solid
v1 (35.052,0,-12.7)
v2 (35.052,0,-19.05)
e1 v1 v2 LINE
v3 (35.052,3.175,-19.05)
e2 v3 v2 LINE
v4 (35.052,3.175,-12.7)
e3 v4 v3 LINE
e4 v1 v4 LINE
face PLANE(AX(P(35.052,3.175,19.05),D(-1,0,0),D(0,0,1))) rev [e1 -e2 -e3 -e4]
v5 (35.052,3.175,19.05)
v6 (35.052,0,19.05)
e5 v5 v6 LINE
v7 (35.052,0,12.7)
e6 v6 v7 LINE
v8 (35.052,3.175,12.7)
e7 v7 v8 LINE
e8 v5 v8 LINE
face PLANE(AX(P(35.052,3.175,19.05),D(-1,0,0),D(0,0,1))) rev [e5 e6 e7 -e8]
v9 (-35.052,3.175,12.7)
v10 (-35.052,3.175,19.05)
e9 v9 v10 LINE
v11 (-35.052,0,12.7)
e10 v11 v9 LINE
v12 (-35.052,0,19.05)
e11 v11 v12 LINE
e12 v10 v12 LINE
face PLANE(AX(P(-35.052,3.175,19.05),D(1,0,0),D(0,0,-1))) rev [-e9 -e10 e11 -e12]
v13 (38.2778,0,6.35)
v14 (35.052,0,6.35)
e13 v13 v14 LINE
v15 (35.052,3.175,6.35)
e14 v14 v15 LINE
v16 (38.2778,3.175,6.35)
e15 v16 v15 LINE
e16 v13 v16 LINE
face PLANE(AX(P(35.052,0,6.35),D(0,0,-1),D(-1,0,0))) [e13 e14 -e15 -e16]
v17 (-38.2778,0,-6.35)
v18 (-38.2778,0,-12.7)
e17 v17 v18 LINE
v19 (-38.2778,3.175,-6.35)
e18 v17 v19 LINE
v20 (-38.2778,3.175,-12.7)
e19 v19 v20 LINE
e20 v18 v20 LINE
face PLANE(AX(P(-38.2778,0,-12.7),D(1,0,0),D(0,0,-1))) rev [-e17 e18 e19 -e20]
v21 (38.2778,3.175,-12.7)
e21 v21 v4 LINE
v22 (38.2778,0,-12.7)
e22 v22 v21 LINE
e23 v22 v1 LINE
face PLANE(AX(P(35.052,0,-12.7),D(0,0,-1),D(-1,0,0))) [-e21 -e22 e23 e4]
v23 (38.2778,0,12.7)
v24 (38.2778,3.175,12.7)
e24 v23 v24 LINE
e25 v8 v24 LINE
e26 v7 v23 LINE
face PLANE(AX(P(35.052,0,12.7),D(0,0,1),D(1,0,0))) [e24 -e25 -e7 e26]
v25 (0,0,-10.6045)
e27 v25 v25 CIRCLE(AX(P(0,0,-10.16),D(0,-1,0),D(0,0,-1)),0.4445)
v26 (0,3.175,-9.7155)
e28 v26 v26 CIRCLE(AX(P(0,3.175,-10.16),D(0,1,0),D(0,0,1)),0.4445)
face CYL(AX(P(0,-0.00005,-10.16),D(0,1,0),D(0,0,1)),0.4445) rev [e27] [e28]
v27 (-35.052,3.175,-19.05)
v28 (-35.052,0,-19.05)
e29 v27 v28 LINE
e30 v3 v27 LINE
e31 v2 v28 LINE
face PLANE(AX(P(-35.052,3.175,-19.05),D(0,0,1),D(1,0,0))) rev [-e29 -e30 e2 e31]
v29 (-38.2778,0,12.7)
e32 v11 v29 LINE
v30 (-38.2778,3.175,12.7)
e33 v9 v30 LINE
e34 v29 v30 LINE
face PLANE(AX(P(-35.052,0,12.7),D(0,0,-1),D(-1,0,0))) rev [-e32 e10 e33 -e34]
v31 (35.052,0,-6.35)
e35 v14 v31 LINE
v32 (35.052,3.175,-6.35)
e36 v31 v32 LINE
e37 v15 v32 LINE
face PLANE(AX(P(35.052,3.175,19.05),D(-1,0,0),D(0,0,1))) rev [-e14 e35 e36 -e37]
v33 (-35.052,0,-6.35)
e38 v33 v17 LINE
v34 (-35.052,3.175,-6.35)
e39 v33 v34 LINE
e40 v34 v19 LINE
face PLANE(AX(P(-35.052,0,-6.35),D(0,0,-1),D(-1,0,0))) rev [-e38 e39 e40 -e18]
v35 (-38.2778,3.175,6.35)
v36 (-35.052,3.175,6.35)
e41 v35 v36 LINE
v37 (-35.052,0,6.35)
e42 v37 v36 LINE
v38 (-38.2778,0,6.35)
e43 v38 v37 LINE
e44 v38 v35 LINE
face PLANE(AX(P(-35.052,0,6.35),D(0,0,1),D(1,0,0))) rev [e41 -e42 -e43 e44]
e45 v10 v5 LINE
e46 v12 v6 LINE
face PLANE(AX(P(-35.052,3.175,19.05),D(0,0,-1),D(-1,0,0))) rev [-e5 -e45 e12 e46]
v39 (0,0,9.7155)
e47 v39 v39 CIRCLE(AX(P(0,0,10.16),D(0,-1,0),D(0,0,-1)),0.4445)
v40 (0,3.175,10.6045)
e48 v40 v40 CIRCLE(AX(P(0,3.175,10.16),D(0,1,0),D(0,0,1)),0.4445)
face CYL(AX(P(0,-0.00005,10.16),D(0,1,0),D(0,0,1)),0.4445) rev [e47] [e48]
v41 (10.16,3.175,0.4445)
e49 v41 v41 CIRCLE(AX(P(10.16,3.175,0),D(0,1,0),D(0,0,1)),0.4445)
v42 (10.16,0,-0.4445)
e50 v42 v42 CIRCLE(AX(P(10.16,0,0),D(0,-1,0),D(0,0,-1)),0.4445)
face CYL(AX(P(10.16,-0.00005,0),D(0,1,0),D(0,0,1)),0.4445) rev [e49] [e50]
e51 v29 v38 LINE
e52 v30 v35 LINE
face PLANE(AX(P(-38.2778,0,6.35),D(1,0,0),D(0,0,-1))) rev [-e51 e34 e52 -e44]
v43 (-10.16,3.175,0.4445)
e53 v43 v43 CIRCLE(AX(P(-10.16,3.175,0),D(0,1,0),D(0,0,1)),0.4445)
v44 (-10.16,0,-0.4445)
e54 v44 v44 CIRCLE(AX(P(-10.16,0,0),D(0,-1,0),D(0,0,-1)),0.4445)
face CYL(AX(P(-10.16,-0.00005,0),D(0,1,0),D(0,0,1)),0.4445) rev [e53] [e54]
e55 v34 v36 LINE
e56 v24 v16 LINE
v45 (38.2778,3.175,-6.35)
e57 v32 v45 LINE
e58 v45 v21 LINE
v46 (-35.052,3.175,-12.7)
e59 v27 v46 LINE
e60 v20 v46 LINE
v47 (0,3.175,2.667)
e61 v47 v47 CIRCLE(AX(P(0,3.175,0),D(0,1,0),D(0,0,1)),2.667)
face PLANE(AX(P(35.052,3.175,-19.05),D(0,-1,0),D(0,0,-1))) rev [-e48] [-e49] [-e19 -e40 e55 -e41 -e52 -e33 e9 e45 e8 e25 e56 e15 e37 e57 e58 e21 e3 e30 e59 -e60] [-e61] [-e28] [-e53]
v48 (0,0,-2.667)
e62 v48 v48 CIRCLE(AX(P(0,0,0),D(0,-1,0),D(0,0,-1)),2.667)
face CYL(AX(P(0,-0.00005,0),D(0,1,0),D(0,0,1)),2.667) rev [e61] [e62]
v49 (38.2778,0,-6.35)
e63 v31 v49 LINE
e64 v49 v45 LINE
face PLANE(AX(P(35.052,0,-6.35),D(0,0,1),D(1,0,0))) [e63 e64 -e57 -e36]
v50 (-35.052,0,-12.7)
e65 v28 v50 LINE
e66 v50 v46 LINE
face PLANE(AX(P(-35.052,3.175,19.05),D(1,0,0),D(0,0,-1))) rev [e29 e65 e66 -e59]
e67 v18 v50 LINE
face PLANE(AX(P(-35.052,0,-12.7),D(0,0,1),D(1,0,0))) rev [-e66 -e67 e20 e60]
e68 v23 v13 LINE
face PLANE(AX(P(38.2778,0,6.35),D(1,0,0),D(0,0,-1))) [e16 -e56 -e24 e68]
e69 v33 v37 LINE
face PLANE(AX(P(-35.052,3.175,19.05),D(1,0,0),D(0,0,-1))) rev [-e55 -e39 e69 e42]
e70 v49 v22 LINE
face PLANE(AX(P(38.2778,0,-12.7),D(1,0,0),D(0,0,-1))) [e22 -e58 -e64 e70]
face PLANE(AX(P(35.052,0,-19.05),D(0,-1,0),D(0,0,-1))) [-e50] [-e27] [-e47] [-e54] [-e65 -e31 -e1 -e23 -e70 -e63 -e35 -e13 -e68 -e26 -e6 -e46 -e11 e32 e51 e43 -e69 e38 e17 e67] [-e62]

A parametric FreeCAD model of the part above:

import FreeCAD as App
import Part
import Sketcher

V = App.Vector
Q = App.Units.Quantity


def add_polygon(sketch, points):
    """Adds a closed chain of lines whose ends are joined by coincident constraints."""
    first, n = sketch.GeometryCount, len(points)
    for a, b in zip(points, points[1:] + points[:1]):
        sketch.addGeometry(Part.LineSegment(App.Vector(*a, 0), App.Vector(*b, 0)), False)
    for i in range(n):
        sketch.addConstraint(Sketcher.Constraint("Coincident", first + i, 2, first + (i + 1) % n, 1))

doc = App.newDocument("Part")
params = doc.addObject("Spreadsheet::Sheet", "Params")
for row, (alias, value) in enumerate([
    ("sketch1_height", "1.5 in"),
    ("sketch1_width", "2.76 in"),
    ("pad1_length", "0.125 in"),
    ("sketch2_height", "0.25 in"),
    ("sketch2_width", "0.127 in"),
    ("pad2_length", "0.125 in"),
    ("sketch3_diameter", "0.21 in"),
    ("sketch3_diameter2", "0.035 in"),
], start=1):
    params.set(f"A{row}", alias)
    params.set(f"B{row}", "=" + value)
    params.setAlias(f"B{row}", alias)

body = doc.addObject("PartDesign::Body", "Body")

# Sketch on XZ plane
sketch1 = body.newObject("Sketcher::SketchObject", "Sketch")
sketch1.AttachmentSupport = (doc.getObject("XZ_Plane"), [""])
sketch1.MapMode = "FlatFace"
add_polygon(sketch1, [(-35, -19), (-35, 19), (35, 19), (35, -19)])  # lines 0-3
sketch1.addConstraint(Sketcher.Constraint("Vertical", 0))
sketch1.addConstraint(Sketcher.Constraint("Horizontal", 1))
sketch1.addConstraint(Sketcher.Constraint("Vertical", 2))
sketch1.addConstraint(Sketcher.Constraint("Horizontal", 3))
sketch1.addConstraint(Sketcher.Constraint("Symmetric", 0, 2, 2, 2, -1, 1))
sketch1.addConstraint(Sketcher.Constraint("DistanceY", 0, 1, 0, 2, Q("1.5 in")))
sketch1.addConstraint(Sketcher.Constraint("DistanceX", 1, 1, 1, 2, Q("2.76 in")))
sketch1.setExpression("Constraints[9]", "Params.sketch1_height")
sketch1.setExpression("Constraints[10]", "Params.sketch1_width")
pad1 = body.newObject("PartDesign::Pad", "Pad")
pad1.Profile = sketch1
pad1.setExpression("Length", "Params.pad1_length")
pad1.Reversed = True

# Sketch on XZ plane
sketch2 = body.newObject("Sketcher::SketchObject", "Sketch001")
sketch2.AttachmentSupport = (doc.getObject("XZ_Plane"), [""])
sketch2.MapMode = "FlatFace"
sketch2.AttachmentOffset = App.Placement(V(0, 0, -0.125 * 25.4), App.Rotation())
add_polygon(sketch2, [(35.1, -12.7), (35.1, -6.3), (38.3, -6.3), (38.3, -12.7)])  # lines 0-3
add_polygon(sketch2, [(35.1, 6.3), (35.1, 12.7), (38.3, 12.7), (38.3, 6.3)])  # lines 4-7
sketch2.addConstraint(Sketcher.Constraint("Vertical", 0))
sketch2.addConstraint(Sketcher.Constraint("Horizontal", 1))
sketch2.addConstraint(Sketcher.Constraint("Vertical", 2))
sketch2.addConstraint(Sketcher.Constraint("Horizontal", 3))
sketch2.addConstraint(Sketcher.Constraint("Vertical", 4))
sketch2.addConstraint(Sketcher.Constraint("Horizontal", 5))
sketch2.addConstraint(Sketcher.Constraint("Vertical", 6))
sketch2.addConstraint(Sketcher.Constraint("Horizontal", 7))
sketch2.addConstraint(Sketcher.Constraint("Symmetric", 3, 2, 4, 2, -1))
sketch2.addConstraint(Sketcher.Constraint("Symmetric", 1, 2, 6, 2, -1))
sketch2.addConstraint(Sketcher.Constraint("DistanceY", 3, 2, 4, 2, Q("1 in")))
sketch2.addConstraint(Sketcher.Constraint("DistanceY", 0, 1, 0, 2, Q("0.25 in")))
sketch2.addConstraint(Sketcher.Constraint("DistanceX", 1, 1, 1, 2, Q("0.127 in")))
sketch2.addConstraint(Sketcher.Constraint("DistanceX", -1, 1, 0, 2, Q("1.38 in")))
sketch2.setExpression("Constraints[19]", "Params.sketch2_height")
sketch2.setExpression("Constraints[20]", "Params.sketch2_width")
pad2 = body.newObject("PartDesign::Pad", "Pad001")
pad2.Profile = sketch2
pad2.setExpression("Length", "Params.pad2_length")
doc.recompute()

mirrored = body.newObject("PartDesign::Mirrored", "Mirrored")
mirrored.Originals = [pad2]
mirrored.MirrorPlane = (doc.getObject("YZ_Plane"), [""])
body.Tip = mirrored

# Sketch on XZ plane
sketch3 = body.newObject("Sketcher::SketchObject", "Sketch002")
sketch3.AttachmentSupport = (doc.getObject("XZ_Plane"), [""])
sketch3.MapMode = "FlatFace"
sketch3.AttachmentOffset = App.Placement(V(0, 0, -0.125 * 25.4), App.Rotation())
sketch3.addGeometry(Part.Circle(V(0, 0, 0), V(0, 0, 1), 2.67), False)
sketch3.addGeometry(Part.Circle(V(0, -10.16, 0), V(0, 0, 1), 0.44), False)
sketch3.addGeometry(Part.Circle(V(10.16, 0, 0), V(0, 0, 1), 0.44), False)
sketch3.addGeometry(Part.Circle(V(0, 10.16, 0), V(0, 0, 1), 0.44), False)
sketch3.addGeometry(Part.Circle(V(-10.16, 0, 0), V(0, 0, 1), 0.44), False)
sketch3.addConstraint(Sketcher.Constraint("Coincident", 0, 3, -1, 1))
sketch3.addConstraint(Sketcher.Constraint("Equal", 1, 2))
sketch3.addConstraint(Sketcher.Constraint("Equal", 2, 3))
sketch3.addConstraint(Sketcher.Constraint("Equal", 3, 4))
sketch3.addConstraint(Sketcher.Constraint("Symmetric", 1, 3, 3, 3, -1, 1))
sketch3.addConstraint(Sketcher.Constraint("Symmetric", 2, 3, 4, 3, -1, 1))
sketch3.addConstraint(Sketcher.Constraint("PointOnObject", 1, 3, -2))
sketch3.addConstraint(Sketcher.Constraint("PointOnObject", 2, 3, -1))
sketch3.addConstraint(Sketcher.Constraint("Diameter", 0, Q("0.21 in")))
sketch3.addConstraint(Sketcher.Constraint("Diameter", 1, Q("0.035 in")))
sketch3.addConstraint(Sketcher.Constraint("DistanceY", 1, 3, -1, 1, Q("0.4 in")))
sketch3.addConstraint(Sketcher.Constraint("DistanceX", -1, 1, 2, 3, Q("0.4 in")))
sketch3.setExpression("Constraints[8]", "Params.sketch3_diameter")
sketch3.setExpression("Constraints[9]", "Params.sketch3_diameter2")
pocket1 = body.newObject("PartDesign::Pocket", "Pocket")
pocket1.Profile = sketch3
pocket1.Type = "ThroughAll"
pocket1.Reversed = True

doc.recompute()
